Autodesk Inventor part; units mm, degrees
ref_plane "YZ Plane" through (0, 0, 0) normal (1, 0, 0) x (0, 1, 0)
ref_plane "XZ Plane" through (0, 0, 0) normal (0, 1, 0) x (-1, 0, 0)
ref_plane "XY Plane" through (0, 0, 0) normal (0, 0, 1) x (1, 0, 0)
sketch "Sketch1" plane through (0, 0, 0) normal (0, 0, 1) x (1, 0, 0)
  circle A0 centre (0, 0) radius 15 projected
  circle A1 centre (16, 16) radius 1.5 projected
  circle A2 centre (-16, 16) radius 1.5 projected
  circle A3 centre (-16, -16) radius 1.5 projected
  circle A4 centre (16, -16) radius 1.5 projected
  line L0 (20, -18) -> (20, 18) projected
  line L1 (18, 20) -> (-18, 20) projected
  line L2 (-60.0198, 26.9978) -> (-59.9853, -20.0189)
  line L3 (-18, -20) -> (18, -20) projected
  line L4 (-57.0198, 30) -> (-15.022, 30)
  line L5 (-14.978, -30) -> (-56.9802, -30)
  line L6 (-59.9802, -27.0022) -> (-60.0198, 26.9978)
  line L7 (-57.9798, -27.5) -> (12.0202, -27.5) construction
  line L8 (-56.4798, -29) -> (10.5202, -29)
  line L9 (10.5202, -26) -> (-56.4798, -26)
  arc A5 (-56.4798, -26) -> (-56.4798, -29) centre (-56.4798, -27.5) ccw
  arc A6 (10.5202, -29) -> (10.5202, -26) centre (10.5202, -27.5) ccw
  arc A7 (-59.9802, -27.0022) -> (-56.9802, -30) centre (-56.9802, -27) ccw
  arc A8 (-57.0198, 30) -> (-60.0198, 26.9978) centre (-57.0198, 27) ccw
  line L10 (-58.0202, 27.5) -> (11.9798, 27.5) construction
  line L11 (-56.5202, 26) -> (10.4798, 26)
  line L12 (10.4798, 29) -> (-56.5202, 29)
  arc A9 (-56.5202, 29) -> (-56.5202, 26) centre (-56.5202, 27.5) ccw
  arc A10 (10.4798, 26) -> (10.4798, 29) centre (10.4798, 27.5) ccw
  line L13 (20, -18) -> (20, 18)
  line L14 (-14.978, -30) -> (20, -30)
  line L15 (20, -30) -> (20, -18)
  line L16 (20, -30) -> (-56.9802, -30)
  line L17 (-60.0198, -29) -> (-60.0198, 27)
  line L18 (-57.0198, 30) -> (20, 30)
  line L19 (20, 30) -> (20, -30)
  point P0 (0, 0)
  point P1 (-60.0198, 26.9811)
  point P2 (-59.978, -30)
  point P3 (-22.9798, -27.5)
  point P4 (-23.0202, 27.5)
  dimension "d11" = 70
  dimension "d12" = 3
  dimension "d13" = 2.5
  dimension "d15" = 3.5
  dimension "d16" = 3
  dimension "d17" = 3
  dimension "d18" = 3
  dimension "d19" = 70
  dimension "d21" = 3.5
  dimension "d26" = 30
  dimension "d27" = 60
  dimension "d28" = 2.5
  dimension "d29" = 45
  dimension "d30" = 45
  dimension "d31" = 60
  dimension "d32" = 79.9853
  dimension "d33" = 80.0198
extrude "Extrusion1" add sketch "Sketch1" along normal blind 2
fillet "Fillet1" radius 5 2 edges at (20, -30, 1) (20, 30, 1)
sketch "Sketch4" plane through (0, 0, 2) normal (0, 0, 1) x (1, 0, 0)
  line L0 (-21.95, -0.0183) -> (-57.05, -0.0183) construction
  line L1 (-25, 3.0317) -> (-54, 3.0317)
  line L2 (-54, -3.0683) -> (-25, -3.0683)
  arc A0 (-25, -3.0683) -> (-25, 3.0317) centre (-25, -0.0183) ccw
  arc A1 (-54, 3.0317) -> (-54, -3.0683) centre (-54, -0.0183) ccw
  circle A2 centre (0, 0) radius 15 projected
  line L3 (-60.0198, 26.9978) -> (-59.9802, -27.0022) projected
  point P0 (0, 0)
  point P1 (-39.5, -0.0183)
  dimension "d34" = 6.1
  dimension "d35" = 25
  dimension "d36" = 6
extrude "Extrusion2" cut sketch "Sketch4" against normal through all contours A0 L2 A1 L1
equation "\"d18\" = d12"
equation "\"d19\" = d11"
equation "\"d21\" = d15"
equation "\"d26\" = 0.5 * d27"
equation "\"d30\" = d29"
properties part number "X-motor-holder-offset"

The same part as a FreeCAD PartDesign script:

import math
import FreeCAD as App
import Part
import Sketcher
Q = App.Units.Quantity


def edges_at(feature, points):
    """Names of the edges that pass closest to the given points."""
    edges = feature.Shape.Edges
    near = lambda p: min(range(len(edges)), key=lambda i: edges[i].distToShape(Part.Vertex(*p))[0])
    return sorted({f"Edge{near(p) + 1}" for p in points})

doc = App.newDocument("Part")
body = doc.addObject("PartDesign::Body", "Body")

# Sketch on XY plane
sketch1 = body.newObject("Sketcher::SketchObject", "Sketch")
sketch1.AttachmentSupport = (doc.getObject("XY_Plane"), [""])
sketch1.MapMode = "FlatFace"
sketch1.addGeometry(Part.LineSegment(App.Vector(20, -30, 0), App.Vector(20, 30, 0)), False)
sketch1.addGeometry(Part.LineSegment(App.Vector(20, 30, 0), App.Vector(-57, 30, 0)), False)
sketch1.addGeometry(Part.ArcOfCircle(Part.Circle(App.Vector(-57, 27, 0), App.Vector(0, 0, 1), 3), math.radians(90), math.radians(180)), False)
sketch1.addGeometry(Part.LineSegment(App.Vector(-60, 27, 0), App.Vector(-60, -20, 0)), False)
sketch1.addGeometry(Part.LineSegment(App.Vector(-60, -20, 0), App.Vector(-60, -27, 0)), False)
sketch1.addGeometry(Part.ArcOfCircle(Part.Circle(App.Vector(-57, -27, 0), App.Vector(0, 0, 1), 3), math.radians(-180), math.radians(-90)), False)
sketch1.addGeometry(Part.LineSegment(App.Vector(-57, -30, 0), App.Vector(20, -30, 0)), False)
sketch1.addGeometry(Part.LineSegment(App.Vector(10.5, -29, 0), App.Vector(-56.5, -29, 0)), False)
sketch1.addGeometry(Part.ArcOfCircle(Part.Circle(App.Vector(-56.5, -27.5, 0), App.Vector(0, 0, 1), 1.5), math.radians(90), math.radians(270)), False)
sketch1.addGeometry(Part.LineSegment(App.Vector(-56.5, -26, 0), App.Vector(10.5, -26, 0)), False)
sketch1.addGeometry(Part.ArcOfCircle(Part.Circle(App.Vector(10.5, -27.5, 0), App.Vector(0, 0, 1), 1.5), math.radians(-90), math.radians(90)), False)
sketch1.addGeometry(Part.Circle(App.Vector(-16, -16, 0), App.Vector(0, 0, 1), 1.5), False)
sketch1.addGeometry(Part.Circle(App.Vector(16, -16, 0), App.Vector(0, 0, 1), 1.5), False)
sketch1.addGeometry(Part.LineSegment(App.Vector(10.5, 26, 0), App.Vector(-56.5, 26, 0)), False)
sketch1.addGeometry(Part.ArcOfCircle(Part.Circle(App.Vector(-56.5, 27.5, 0), App.Vector(0, 0, 1), 1.5), math.radians(90), math.radians(270)), False)
sketch1.addGeometry(Part.LineSegment(App.Vector(-56.5, 29, 0), App.Vector(10.5, 29, 0)), False)
sketch1.addGeometry(Part.ArcOfCircle(Part.Circle(App.Vector(10.5, 27.5, 0), App.Vector(0, 0, 1), 1.5), math.radians(-90), math.radians(90)), False)
sketch1.addGeometry(Part.Circle(App.Vector(0, 0, 0), App.Vector(0, 0, 1), 15), False)
sketch1.addGeometry(Part.Circle(App.Vector(-16, 16, 0), App.Vector(0, 0, 1), 1.5), False)
sketch1.addGeometry(Part.Circle(App.Vector(16, 16, 0), App.Vector(0, 0, 1), 1.5), False)
sketch1.addConstraint(Sketcher.Constraint("Coincident", 0, 2, 1, 1))
sketch1.addConstraint(Sketcher.Constraint("Tangent", 1, 2, 2, 1))
sketch1.addConstraint(Sketcher.Constraint("Tangent", 2, 2, 3, 1))
sketch1.addConstraint(Sketcher.Constraint("Coincident", 3, 2, 4, 1))
sketch1.addConstraint(Sketcher.Constraint("Tangent", 4, 2, 5, 1))
sketch1.addConstraint(Sketcher.Constraint("Tangent", 5, 2, 6, 1))
sketch1.addConstraint(Sketcher.Constraint("Coincident", 6, 2, 0, 1))
sketch1.addConstraint(Sketcher.Constraint("Tangent", 7, 2, 8, 2))
sketch1.addConstraint(Sketcher.Constraint("Tangent", 8, 1, 9, 1))
sketch1.addConstraint(Sketcher.Constraint("Tangent", 9, 2, 10, 2))
sketch1.addConstraint(Sketcher.Constraint("Tangent", 10, 1, 7, 1))
sketch1.addConstraint(Sketcher.Constraint("Tangent", 13, 2, 14, 2))
sketch1.addConstraint(Sketcher.Constraint("Tangent", 14, 1, 15, 1))
sketch1.addConstraint(Sketcher.Constraint("Tangent", 15, 2, 16, 2))
sketch1.addConstraint(Sketcher.Constraint("Tangent", 16, 1, 13, 1))
sketch1.addConstraint(Sketcher.Constraint("Vertical", 0))
sketch1.addConstraint(Sketcher.Constraint("Horizontal", 1))
sketch1.addConstraint(Sketcher.Constraint("Horizontal", 6))
sketch1.addConstraint(Sketcher.Constraint("Horizontal", 7))
sketch1.addConstraint(Sketcher.Constraint("Horizontal", 9))
sketch1.addConstraint(Sketcher.Constraint("Horizontal", 13))
sketch1.addConstraint(Sketcher.Constraint("Horizontal", 15))
sketch1.addConstraint(Sketcher.Constraint("Coincident", 17, 3, -1, 1))
sketch1.addConstraint(Sketcher.Constraint("Equal", 2, 5))
sketch1.addConstraint(Sketcher.Constraint("Equal", 10, 11))
sketch1.addConstraint(Sketcher.Constraint("Equal", 11, 12))
sketch1.addConstraint(Sketcher.Constraint("Equal", 12, 14))
sketch1.addConstraint(Sketcher.Constraint("Equal", 16, 18))
sketch1.addConstraint(Sketcher.Constraint("Equal", 18, 19))
sketch1.addConstraint(Sketcher.Constraint("Symmetric", 12, 3, 18, 3, -1, 1))
sketch1.addConstraint(Sketcher.Constraint("Symmetric", 11, 3, 19, 3, -1, 1))
sketch1.addConstraint(Sketcher.Constraint("Symmetric", 11, 3, 12, 3, -2))
sketch1.addConstraint(Sketcher.Constraint("Parallel", 3, 4))
sketch1.addConstraint(Sketcher.Constraint("Equal", 9, 13))
sketch1.addConstraint(Sketcher.Constraint("Diameter", 11, Q("3 mm")))
sketch1.addConstraint(Sketcher.Constraint("Diameter", 17, Q("30 mm")))
sketch1.addConstraint(Sketcher.Constraint("Radius", 2, Q("3 mm")))
sketch1.addConstraint(Sketcher.Constraint("DistanceY", 0, 1, 0, 2, Q("60 mm")))
sketch1.addConstraint(Sketcher.Constraint("DistanceY", -1, 1, 0, 2, Q("30 mm")))
sketch1.addConstraint(Sketcher.Constraint("DistanceY", 16, 3, 0, 2, Q("2.5 mm")))
sketch1.addConstraint(Sketcher.Constraint("DistanceY", 5, 2, 8, 3, Q("2.5 mm")))
sketch1.addConstraint(Sketcher.Constraint("DistanceX", 7, 2, 7, 1, Q("67 mm")))
sketch1.addConstraint(Sketcher.Constraint("DistanceX", 11, 3, -1, 1, Q("16 mm")))
sketch1.addConstraint(Sketcher.Constraint("DistanceY", 11, 3, -1, 1, Q("16 mm")))
sketch1.addConstraint(Sketcher.Constraint("DistanceX", -1, 1, 0, 2, Q("20 mm")))
sketch1.addConstraint(Sketcher.Constraint("DistanceX", 2, 2, 14, 3, Q("3.4996 mm")))
sketch1.addConstraint(Sketcher.Constraint("DistanceX", 4, 2, 8, 3, Q("3.5004 mm")))
sketch1.addConstraint(Sketcher.Constraint("DistanceX", 2, 3, 8, 3, Q("0.54 mm")))
sketch1.addConstraint(Sketcher.Constraint("DistanceX", 1, 2, 1, 1, Q("77.0198 mm")))
sketch1.addConstraint(Sketcher.Constraint("DistanceY", 3, 2, -1, 1, Q("20.019 mm")))
pad1 = body.newObject("PartDesign::Pad", "Pad")
pad1.Profile = sketch1
pad1.Length = 2
doc.recompute()

fillet = body.newObject("PartDesign::Fillet", "Fillet")
fillet.Base = (pad1, edges_at(pad1, [(20, -30, 1), (20, 30, 1)]))
fillet.Radius = 5

# Sketch on XY plane
sketch2 = body.newObject("Sketcher::SketchObject", "Sketch001")
sketch2.AttachmentSupport = (doc.getObject("XY_Plane"), [""])
sketch2.MapMode = "FlatFace"
sketch2.AttachmentOffset = App.Placement(App.Vector(0, 0, 2), App.Rotation())
sketch2.addGeometry(Part.ArcOfCircle(Part.Circle(App.Vector(-25, 0, 0), App.Vector(0, 0, 1), 3), math.radians(-90), math.radians(90)), False)
sketch2.addGeometry(Part.LineSegment(App.Vector(-25, 3, 0), App.Vector(-54, 3, 0)), False)
sketch2.addGeometry(Part.ArcOfCircle(Part.Circle(App.Vector(-54, 0, 0), App.Vector(0, 0, 1), 3), math.radians(90), math.radians(270)), False)
sketch2.addGeometry(Part.LineSegment(App.Vector(-54, -3.1, 0), App.Vector(-25, -3.1, 0)), False)
sketch2.addConstraint(Sketcher.Constraint("Tangent", 0, 2, 1, 1))
sketch2.addConstraint(Sketcher.Constraint("Tangent", 1, 2, 2, 1))
sketch2.addConstraint(Sketcher.Constraint("Tangent", 2, 2, 3, 1))
sketch2.addConstraint(Sketcher.Constraint("Tangent", 3, 2, 0, 1))
sketch2.addConstraint(Sketcher.Constraint("Horizontal", 1))
sketch2.addConstraint(Sketcher.Constraint("Horizontal", 3))
sketch2.addConstraint(Sketcher.Constraint("Radius", 0, Q("3.05 mm")))
sketch2.addConstraint(Sketcher.Constraint("DistanceX", 0, 3, -1, 1, Q("25 mm")))
sketch2.addConstraint(Sketcher.Constraint("DistanceX", 1, 2, 1, 1, Q("29 mm")))
sketch2.addConstraint(Sketcher.Constraint("DistanceY", 0, 3, -1, 1, Q("0.0183 mm")))
pocket1 = body.newObject("PartDesign::Pocket", "Pocket")
pocket1.Profile = sketch2
pocket1.Type = "ThroughAll"

doc.recompute()
